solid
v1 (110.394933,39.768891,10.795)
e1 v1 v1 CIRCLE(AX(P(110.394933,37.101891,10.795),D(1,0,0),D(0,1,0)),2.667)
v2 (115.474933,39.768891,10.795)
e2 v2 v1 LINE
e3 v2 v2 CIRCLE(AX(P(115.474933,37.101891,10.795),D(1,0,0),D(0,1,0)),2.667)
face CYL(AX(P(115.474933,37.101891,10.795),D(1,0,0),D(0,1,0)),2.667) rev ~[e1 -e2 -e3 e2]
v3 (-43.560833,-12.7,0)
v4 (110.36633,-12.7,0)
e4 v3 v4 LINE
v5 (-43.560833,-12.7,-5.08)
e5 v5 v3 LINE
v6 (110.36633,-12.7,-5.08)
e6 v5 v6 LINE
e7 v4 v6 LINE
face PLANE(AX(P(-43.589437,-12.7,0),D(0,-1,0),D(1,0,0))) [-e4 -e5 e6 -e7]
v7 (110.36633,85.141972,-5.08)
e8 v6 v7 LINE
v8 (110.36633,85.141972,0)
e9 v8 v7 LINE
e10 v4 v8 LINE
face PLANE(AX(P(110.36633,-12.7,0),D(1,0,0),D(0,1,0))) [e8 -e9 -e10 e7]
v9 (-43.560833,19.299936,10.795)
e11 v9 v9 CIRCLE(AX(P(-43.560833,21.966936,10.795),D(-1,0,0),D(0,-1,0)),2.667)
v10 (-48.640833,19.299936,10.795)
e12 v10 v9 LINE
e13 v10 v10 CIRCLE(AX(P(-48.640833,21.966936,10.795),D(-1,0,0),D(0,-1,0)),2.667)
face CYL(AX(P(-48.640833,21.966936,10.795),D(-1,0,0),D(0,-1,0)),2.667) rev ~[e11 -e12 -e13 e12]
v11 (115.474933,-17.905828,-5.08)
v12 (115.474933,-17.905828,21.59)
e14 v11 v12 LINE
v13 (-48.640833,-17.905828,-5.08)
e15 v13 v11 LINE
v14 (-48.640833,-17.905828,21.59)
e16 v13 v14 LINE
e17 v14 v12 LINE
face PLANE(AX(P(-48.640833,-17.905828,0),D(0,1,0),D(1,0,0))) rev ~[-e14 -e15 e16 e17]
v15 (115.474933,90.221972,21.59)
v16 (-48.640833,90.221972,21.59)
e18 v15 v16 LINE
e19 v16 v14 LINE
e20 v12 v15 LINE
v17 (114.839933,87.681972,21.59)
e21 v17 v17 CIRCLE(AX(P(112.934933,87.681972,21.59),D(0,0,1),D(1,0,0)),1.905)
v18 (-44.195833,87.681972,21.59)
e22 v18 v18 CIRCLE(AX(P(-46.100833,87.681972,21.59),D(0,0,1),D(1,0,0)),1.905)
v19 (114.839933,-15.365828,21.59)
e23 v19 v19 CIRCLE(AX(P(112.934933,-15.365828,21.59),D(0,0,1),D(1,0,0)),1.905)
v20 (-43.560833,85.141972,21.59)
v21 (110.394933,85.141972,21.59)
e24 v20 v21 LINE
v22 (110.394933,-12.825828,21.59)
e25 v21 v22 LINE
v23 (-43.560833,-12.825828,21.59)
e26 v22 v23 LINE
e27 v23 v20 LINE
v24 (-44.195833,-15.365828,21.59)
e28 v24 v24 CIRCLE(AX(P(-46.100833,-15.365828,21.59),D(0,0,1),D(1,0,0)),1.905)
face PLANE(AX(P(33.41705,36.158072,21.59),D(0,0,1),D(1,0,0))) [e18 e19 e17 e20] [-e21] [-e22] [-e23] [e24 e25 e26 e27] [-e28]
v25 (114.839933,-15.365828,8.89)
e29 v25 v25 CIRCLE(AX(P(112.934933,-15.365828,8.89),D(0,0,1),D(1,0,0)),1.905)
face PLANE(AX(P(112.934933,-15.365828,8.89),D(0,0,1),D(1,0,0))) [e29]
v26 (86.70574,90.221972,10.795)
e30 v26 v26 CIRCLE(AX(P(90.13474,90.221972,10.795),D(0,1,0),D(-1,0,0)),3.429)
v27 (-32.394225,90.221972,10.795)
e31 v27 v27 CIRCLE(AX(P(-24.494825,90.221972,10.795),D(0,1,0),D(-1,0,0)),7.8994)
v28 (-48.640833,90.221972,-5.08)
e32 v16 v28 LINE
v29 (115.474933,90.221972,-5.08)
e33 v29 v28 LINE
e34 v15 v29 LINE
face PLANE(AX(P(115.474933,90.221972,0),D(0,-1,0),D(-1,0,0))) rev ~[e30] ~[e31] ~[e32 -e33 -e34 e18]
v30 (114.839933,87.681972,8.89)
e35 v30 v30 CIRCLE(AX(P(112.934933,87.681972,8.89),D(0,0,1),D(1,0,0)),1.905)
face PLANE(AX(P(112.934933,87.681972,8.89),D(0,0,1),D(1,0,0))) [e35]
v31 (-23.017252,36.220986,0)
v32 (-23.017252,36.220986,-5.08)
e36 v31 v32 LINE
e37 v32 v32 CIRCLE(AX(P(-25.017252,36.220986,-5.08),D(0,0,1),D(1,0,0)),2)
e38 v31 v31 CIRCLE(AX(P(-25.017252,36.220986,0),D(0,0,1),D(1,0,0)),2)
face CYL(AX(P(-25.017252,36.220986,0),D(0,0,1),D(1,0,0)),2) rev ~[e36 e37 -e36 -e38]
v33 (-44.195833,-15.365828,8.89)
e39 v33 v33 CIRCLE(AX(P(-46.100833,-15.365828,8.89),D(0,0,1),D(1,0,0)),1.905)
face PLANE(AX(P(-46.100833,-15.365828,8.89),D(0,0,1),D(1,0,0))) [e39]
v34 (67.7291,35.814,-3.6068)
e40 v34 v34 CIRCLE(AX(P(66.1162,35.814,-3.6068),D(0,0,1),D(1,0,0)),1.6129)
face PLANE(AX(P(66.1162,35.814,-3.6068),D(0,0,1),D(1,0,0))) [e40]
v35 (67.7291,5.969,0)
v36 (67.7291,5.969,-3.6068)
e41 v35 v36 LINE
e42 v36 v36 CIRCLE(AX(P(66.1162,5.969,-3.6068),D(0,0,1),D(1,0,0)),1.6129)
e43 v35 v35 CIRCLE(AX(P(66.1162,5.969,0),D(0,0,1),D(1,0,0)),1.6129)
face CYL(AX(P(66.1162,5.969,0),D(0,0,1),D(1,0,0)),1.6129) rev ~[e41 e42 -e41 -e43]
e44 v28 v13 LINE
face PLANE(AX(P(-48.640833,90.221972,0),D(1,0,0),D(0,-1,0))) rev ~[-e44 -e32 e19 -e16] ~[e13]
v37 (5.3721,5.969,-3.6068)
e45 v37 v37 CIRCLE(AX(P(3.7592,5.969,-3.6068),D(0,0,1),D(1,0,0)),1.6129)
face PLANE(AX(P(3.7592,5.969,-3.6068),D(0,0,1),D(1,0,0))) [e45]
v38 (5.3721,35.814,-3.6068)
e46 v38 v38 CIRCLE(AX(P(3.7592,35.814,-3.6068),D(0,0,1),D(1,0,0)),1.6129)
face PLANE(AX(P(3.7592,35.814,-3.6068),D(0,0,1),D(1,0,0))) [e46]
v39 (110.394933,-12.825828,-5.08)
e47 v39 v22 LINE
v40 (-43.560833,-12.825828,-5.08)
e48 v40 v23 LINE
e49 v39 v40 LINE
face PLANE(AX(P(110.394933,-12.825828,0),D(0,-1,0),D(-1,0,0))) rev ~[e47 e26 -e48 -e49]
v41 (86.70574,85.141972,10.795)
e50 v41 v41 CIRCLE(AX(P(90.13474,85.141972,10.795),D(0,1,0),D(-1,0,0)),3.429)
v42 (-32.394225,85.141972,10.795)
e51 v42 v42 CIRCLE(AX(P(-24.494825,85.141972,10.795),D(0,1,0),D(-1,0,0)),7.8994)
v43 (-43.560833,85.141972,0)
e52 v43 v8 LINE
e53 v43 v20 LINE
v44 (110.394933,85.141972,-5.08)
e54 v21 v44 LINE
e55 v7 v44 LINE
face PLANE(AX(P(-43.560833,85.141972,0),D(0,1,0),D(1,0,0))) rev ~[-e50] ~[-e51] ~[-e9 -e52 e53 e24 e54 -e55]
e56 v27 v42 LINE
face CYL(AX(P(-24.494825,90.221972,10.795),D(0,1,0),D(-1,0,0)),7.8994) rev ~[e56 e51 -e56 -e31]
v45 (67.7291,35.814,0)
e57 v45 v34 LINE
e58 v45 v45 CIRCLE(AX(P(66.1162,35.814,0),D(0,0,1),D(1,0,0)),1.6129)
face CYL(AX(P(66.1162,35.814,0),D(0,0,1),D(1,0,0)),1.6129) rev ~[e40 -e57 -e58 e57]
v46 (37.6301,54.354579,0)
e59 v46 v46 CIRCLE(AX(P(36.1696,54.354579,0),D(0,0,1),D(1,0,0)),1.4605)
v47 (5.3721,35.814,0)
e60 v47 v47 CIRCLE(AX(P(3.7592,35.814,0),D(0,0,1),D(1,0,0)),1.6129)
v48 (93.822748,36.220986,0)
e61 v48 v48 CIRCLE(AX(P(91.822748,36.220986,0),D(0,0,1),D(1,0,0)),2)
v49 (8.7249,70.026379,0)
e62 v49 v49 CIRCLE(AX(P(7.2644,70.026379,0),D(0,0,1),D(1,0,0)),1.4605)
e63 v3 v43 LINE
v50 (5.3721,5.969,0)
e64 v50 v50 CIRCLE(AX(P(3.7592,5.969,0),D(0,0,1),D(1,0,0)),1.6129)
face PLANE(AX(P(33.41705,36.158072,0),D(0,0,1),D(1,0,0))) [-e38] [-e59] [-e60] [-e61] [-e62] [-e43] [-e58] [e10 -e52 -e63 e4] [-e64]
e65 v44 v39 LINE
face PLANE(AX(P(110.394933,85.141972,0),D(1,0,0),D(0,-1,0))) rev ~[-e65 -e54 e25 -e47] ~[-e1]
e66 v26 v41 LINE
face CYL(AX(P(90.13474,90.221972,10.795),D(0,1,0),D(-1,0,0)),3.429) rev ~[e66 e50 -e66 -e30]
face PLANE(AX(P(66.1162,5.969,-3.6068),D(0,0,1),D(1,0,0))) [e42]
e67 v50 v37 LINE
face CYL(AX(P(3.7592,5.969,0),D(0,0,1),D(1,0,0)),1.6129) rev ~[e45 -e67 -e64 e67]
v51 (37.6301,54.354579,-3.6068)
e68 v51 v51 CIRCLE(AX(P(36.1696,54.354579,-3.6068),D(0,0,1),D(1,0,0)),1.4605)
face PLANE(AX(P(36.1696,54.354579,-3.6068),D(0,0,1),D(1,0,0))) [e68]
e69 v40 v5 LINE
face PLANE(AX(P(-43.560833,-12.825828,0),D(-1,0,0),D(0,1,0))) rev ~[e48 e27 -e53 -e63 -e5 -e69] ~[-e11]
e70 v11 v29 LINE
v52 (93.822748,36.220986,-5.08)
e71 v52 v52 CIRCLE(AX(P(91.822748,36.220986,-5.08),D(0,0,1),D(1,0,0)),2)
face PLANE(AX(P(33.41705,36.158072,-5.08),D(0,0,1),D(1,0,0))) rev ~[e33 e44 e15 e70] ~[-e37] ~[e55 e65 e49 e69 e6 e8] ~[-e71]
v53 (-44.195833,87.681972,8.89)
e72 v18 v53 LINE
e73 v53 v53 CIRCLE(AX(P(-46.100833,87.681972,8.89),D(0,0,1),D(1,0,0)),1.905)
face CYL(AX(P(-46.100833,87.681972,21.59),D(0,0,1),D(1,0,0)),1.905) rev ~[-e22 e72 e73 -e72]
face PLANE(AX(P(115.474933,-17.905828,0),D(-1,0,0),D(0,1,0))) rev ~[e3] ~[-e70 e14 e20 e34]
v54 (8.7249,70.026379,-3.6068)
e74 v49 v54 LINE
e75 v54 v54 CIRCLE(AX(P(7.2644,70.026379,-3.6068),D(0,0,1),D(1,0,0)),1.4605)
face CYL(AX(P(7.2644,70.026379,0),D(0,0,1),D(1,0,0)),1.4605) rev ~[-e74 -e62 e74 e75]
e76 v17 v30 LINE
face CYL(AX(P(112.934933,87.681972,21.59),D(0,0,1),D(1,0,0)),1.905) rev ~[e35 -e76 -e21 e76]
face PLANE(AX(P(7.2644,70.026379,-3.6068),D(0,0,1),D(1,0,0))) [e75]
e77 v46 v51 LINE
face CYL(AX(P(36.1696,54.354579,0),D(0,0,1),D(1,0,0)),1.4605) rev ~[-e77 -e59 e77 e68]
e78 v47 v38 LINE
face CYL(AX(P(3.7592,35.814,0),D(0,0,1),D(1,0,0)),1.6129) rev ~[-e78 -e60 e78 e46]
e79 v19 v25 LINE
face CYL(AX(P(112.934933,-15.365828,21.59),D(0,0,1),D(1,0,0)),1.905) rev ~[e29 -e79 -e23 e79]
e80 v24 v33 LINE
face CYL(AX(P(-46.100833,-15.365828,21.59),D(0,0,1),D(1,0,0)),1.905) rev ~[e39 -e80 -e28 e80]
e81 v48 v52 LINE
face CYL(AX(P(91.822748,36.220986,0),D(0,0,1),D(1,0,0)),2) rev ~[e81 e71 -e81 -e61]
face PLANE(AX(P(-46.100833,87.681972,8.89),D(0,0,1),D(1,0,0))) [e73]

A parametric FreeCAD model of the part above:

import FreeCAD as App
import Part
import Sketcher
Q = App.Units.Quantity


def add_polygon(sketch, points):
    """Adds a closed chain of lines whose ends are joined by coincident constraints."""
    first, n = sketch.GeometryCount, len(points)
    for a, b in zip(points, points[1:] + points[:1]):
        sketch.addGeometry(Part.LineSegment(App.Vector(*a, 0), App.Vector(*b, 0)), False)
    for i in range(n):
        sketch.addConstraint(Sketcher.Constraint("Coincident", first + i, 2, first + (i + 1) % n, 1))

doc = App.newDocument("Part")
body = doc.addObject("PartDesign::Body", "Body")

sketch1 = body.newObject("Sketcher::SketchObject", "Sketch")
sketch1.AttachmentSupport = (doc.getObject("XY_Plane"), [""])
sketch1.MapMode = "FlatFace"
add_polygon(sketch1, [(-43.589437, -12.7), (110.36633, -12.7), (110.36633, 85.2678), (-43.589437, 85.2678)])
sketch1.addConstraint(Sketcher.Constraint("Horizontal", 0))
sketch1.addConstraint(Sketcher.Constraint("Vertical", 1))
sketch1.addConstraint(Sketcher.Constraint("Horizontal", 2))
sketch1.addConstraint(Sketcher.Constraint("Vertical", 3))
sketch1.addConstraint(Sketcher.Constraint("DistanceY", 0, 2, -1, 1, Q("0.5 in")))
sketch1.addConstraint(Sketcher.Constraint("DistanceY", 1, 1, 1, 2, Q("3.857 in")))
sketch1.addConstraint(Sketcher.Constraint("DistanceX", 0, 1, 0, 2, Q("153.955767 mm")))
sketch1.addConstraint(Sketcher.Constraint("DistanceX", -1, 1, 0, 2, Q("110.36633 mm")))
pad1 = body.newObject("PartDesign::Pad", "Pad")
pad1.Profile = sketch1
pad1.Length = Q("0.2 in")
pad1.Reversed = True

sketch2 = body.newObject("Sketcher::SketchObject", "Sketch001")
sketch2.AttachmentSupport = (doc.getObject("XY_Plane"), [""])
sketch2.MapMode = "FlatFace"
add_polygon(sketch2, [(-48.640833, 90.221972), (-48.640833, -17.905828), (115.474933, -17.905828), (115.474933, 90.221972)])
add_polygon(sketch2, [(110.394933, 85.141972), (110.394933, -12.825828), (-43.560833, -12.825828), (-43.560833, 85.141972)])
sketch2.addConstraint(Sketcher.Constraint("Vertical", 0))
sketch2.addConstraint(Sketcher.Constraint("Horizontal", 1))
sketch2.addConstraint(Sketcher.Constraint("Vertical", 2))
sketch2.addConstraint(Sketcher.Constraint("Horizontal", 3))
sketch2.addConstraint(Sketcher.Constraint("Vertical", 4))
sketch2.addConstraint(Sketcher.Constraint("Horizontal", 5))
sketch2.addConstraint(Sketcher.Constraint("Vertical", 6))
sketch2.addConstraint(Sketcher.Constraint("Horizontal", 7))
sketch2.addConstraint(Sketcher.Constraint("DistanceX", 4, 2, 1, 2, Q("0.2 in")))
sketch2.addConstraint(Sketcher.Constraint("DistanceY", 1, 2, 4, 2, Q("0.2 in")))
sketch2.addConstraint(Sketcher.Constraint("DistanceX", 0, 2, 5, 2, Q("0.2 in")))
sketch2.addConstraint(Sketcher.Constraint("DistanceY", 6, 2, 3, 2, Q("0.2 in")))
sketch2.addConstraint(Sketcher.Constraint("DistanceY", 0, 2, 0, 1, Q("4.257 in")))
sketch2.addConstraint(Sketcher.Constraint("DistanceX", 1, 1, 1, 2, Q("164.115766 mm")))
sketch2.addConstraint(Sketcher.Constraint("DistanceY", -1, 1, 2, 2, Q("90.221972 mm")))
sketch2.addConstraint(Sketcher.Constraint("DistanceX", 0, 2, -1, 1, Q("48.640833 mm")))
pad2 = body.newObject("PartDesign::Pad", "Pad001")
pad2.Profile = sketch2
pad2.Length = Q("0.2 in")
pad2.Reversed = True

sketch3 = body.newObject("Sketcher::SketchObject", "Sketch002")
sketch3.AttachmentSupport = (doc.getObject("XY_Plane"), [""])
sketch3.MapMode = "FlatFace"
add_polygon(sketch3, [(-48.640833, 90.221972), (-48.640833, -17.905828), (115.474933, -17.905828), (115.474933, 90.221972)])
add_polygon(sketch3, [(110.394933, 85.141972), (110.394933, -12.825828), (-43.560833, -12.825828), (-43.560833, 85.141972)])
sketch3.addConstraint(Sketcher.Constraint("Vertical", 0))
sketch3.addConstraint(Sketcher.Constraint("Horizontal", 1))
sketch3.addConstraint(Sketcher.Constraint("Vertical", 2))
sketch3.addConstraint(Sketcher.Constraint("Horizontal", 3))
sketch3.addConstraint(Sketcher.Constraint("Vertical", 4))
sketch3.addConstraint(Sketcher.Constraint("Horizontal", 5))
sketch3.addConstraint(Sketcher.Constraint("Vertical", 6))
sketch3.addConstraint(Sketcher.Constraint("Horizontal", 7))
sketch3.addConstraint(Sketcher.Constraint("DistanceX", 4, 2, 1, 2, Q("0.2 in")))
sketch3.addConstraint(Sketcher.Constraint("DistanceY", 1, 2, 4, 2, Q("0.2 in")))
sketch3.addConstraint(Sketcher.Constraint("DistanceX", 0, 2, 5, 2, Q("0.2 in")))
sketch3.addConstraint(Sketcher.Constraint("DistanceY", 6, 2, 3, 2, Q("0.2 in")))
sketch3.addConstraint(Sketcher.Constraint("DistanceY", 0, 2, 0, 1, Q("4.257 in")))
sketch3.addConstraint(Sketcher.Constraint("DistanceX", 1, 1, 1, 2, Q("164.115766 mm")))
sketch3.addConstraint(Sketcher.Constraint("DistanceY", -1, 1, 2, 2, Q("90.221972 mm")))
sketch3.addConstraint(Sketcher.Constraint("DistanceX", 0, 2, -1, 1, Q("48.640833 mm")))
pad3 = body.newObject("PartDesign::Pad", "Pad002")
pad3.Profile = sketch3
pad3.Length = Q("0.85 in")

sketch4 = body.newObject("Sketcher::SketchObject", "Sketch003")
sketch4.AttachmentSupport = (doc.getObject("XZ_Plane"), [""])
sketch4.MapMode = "FlatFace"
sketch4.AttachmentOffset = App.Placement(App.Vector(0, 0, -90.221972), App.Rotation())
sketch4.addGeometry(Part.Circle(App.Vector(-24.494825, 10.795, 0), App.Vector(0, 0, 1), 7.8994), False)
sketch4.addConstraint(Sketcher.Constraint("Diameter", 0, Q("0.622 in")))
sketch4.addConstraint(Sketcher.Constraint("DistanceY", -1, 1, 0, 3, Q("0.425 in")))
sketch4.addConstraint(Sketcher.Constraint("DistanceX", 0, 3, -1, 1, Q("24.494825 mm")))
pocket1 = body.newObject("PartDesign::Pocket", "Pocket")
pocket1.Profile = sketch4
pocket1.Length = Q("1 in")
pocket1.Reversed = True

sketch5 = body.newObject("Sketcher::SketchObject", "Sketch004")
sketch5.AttachmentSupport = (doc.getObject("XZ_Plane"), [""])
sketch5.MapMode = "FlatFace"
sketch5.AttachmentOffset = App.Placement(App.Vector(0, 0, -90.221972), App.Rotation())
sketch5.addGeometry(Part.Circle(App.Vector(90.13474, 10.795, 0), App.Vector(0, 0, 1), 3.429), False)
sketch5.addConstraint(Sketcher.Constraint("Diameter", 0, Q("0.27 in")))
sketch5.addConstraint(Sketcher.Constraint("DistanceY", -1, 1, 0, 3, Q("0.425 in")))
sketch5.addConstraint(Sketcher.Constraint("DistanceX", -1, 1, 0, 3, Q("90.13474 mm")))
pocket2 = body.newObject("PartDesign::Pocket", "Pocket001")
pocket2.Profile = sketch5
pocket2.Length = Q("1 in")
pocket2.Reversed = True

sketch6 = body.newObject("Sketcher::SketchObject", "Sketch005")
sketch6.AttachmentSupport = (doc.getObject("YZ_Plane"), [""])
sketch6.MapMode = "FlatFace"
sketch6.AttachmentOffset = App.Placement(App.Vector(0, 0, -48.640833), App.Rotation())
sketch6.addGeometry(Part.Circle(App.Vector(21.966936, 10.795, 0), App.Vector(0, 0, 1), 2.667), False)
sketch6.addConstraint(Sketcher.Constraint("Diameter", 0, Q("0.21 in")))
sketch6.addConstraint(Sketcher.Constraint("DistanceY", -1, 1, 0, 3, Q("0.425 in")))
sketch6.addConstraint(Sketcher.Constraint("DistanceX", -1, 1, 0, 3, Q("21.966936 mm")))
pocket3 = body.newObject("PartDesign::Pocket", "Pocket002")
pocket3.Profile = sketch6
pocket3.Length = Q("1 in")
pocket3.Reversed = True

sketch7 = body.newObject("Sketcher::SketchObject", "Sketch006")
sketch7.AttachmentSupport = (doc.getObject("YZ_Plane"), [""])
sketch7.MapMode = "FlatFace"
sketch7.AttachmentOffset = App.Placement(App.Vector(0, 0, 115.474933), App.Rotation())
sketch7.addGeometry(Part.Circle(App.Vector(37.101891, 10.795, 0), App.Vector(0, 0, 1), 2.667), False)
sketch7.addConstraint(Sketcher.Constraint("Diameter", 0, Q("0.21 in")))
sketch7.addConstraint(Sketcher.Constraint("DistanceY", -1, 1, 0, 3, Q("0.425 in")))
sketch7.addConstraint(Sketcher.Constraint("DistanceX", -1, 1, 0, 3, Q("37.101891 mm")))
pocket4 = body.newObject("PartDesign::Pocket", "Pocket003")
pocket4.Profile = sketch7
pocket4.Length = Q("1 in")

sketch8 = body.newObject("Sketcher::SketchObject", "Sketch007")
sketch8.AttachmentSupport = (doc.getObject("XY_Plane"), [""])
sketch8.MapMode = "FlatFace"
sketch8.addGeometry(Part.Circle(App.Vector(7.2644, 70.026379, 0), App.Vector(0, 0, 1), 1.4605), False)
sketch8.addGeometry(Part.Circle(App.Vector(36.1696, 54.354579, 0), App.Vector(0, 0, 1), 1.4605), False)
sketch8.addConstraint(Sketcher.Constraint("Equal", 0, 1))
sketch8.addConstraint(Sketcher.Constraint("Diameter", 0, Q("0.115 in")))
sketch8.addConstraint(Sketcher.Constraint("DistanceX", -1, 1, 0, 3, Q("0.286 in")))
sketch8.addConstraint(Sketcher.Constraint("DistanceX", -1, 1, 1, 3, Q("1.424 in")))
sketch8.addConstraint(Sketcher.Constraint("DistanceY", 1, 3, 0, 3, Q("0.617 in")))
sketch8.addConstraint(Sketcher.Constraint("DistanceY", -1, 1, 0, 3, Q("70.026379 mm")))
pocket5 = body.newObject("PartDesign::Pocket", "Pocket004")
pocket5.Profile = sketch8
pocket5.Length = Q("0.142 in")

sketch9 = body.newObject("Sketcher::SketchObject", "Sketch008")
sketch9.AttachmentSupport = (doc.getObject("XY_Plane"), [""])
sketch9.MapMode = "FlatFace"
sketch9.addGeometry(Part.Circle(App.Vector(3.7592, 35.814, 0), App.Vector(0, 0, 1), 1.6129), False)
sketch9.addGeometry(Part.Circle(App.Vector(3.7592, 5.969, 0), App.Vector(0, 0, 1), 1.6129), False)
sketch9.addGeometry(Part.Circle(App.Vector(66.1162, 5.969, 0), App.Vector(0, 0, 1), 1.6129), False)
sketch9.addGeometry(Part.Circle(App.Vector(66.1162, 35.814, 0), App.Vector(0, 0, 1), 1.6129), False)
sketch9.addConstraint(Sketcher.Constraint("Equal", 0, 1))
sketch9.addConstraint(Sketcher.Constraint("Equal", 1, 2))
sketch9.addConstraint(Sketcher.Constraint("Equal", 2, 3))
sketch9.addConstraint(Sketcher.Constraint("Horizontal", 1, 3, 2, 3))
sketch9.addConstraint(Sketcher.Constraint("Horizontal", 0, 3, 3, 3))
sketch9.addConstraint(Sketcher.Constraint("Vertical", 0, 3, 1, 3))
sketch9.addConstraint(Sketcher.Constraint("Vertical", 2, 3, 3, 3))
sketch9.addConstraint(Sketcher.Constraint("Diameter", 0, Q("0.127 in")))
sketch9.addConstraint(Sketcher.Constraint("DistanceY", -1, 1, 0, 3, Q("1.41 in")))
sketch9.addConstraint(Sketcher.Constraint("DistanceX", -1, 1, 0, 3, Q("0.148 in")))
sketch9.addConstraint(Sketcher.Constraint("DistanceY", -1, 1, 1, 3, Q("0.235 in")))
sketch9.addConstraint(Sketcher.Constraint("DistanceX", -1, 1, 2, 3, Q("2.603 in")))
pocket6 = body.newObject("PartDesign::Pocket", "Pocket005")
pocket6.Profile = sketch9
pocket6.Length = Q("0.142 in")

sketch10 = body.newObject("Sketcher::SketchObject", "Sketch009")
sketch10.AttachmentSupport = (doc.getObject("XY_Plane"), [""])
sketch10.MapMode = "FlatFace"
sketch10.AttachmentOffset = App.Placement(App.Vector(0, 0, 0.85 * 25.4), App.Rotation())
sketch10.addGeometry(Part.Circle(App.Vector(-46.100833, -15.365828, 0), App.Vector(0, 0, 1), 1.905), False)
sketch10.addGeometry(Part.Circle(App.Vector(-46.100833, 87.681972, 0), App.Vector(0, 0, 1), 1.905), False)
sketch10.addGeometry(Part.Circle(App.Vector(112.934933, 87.681972, 0), App.Vector(0, 0, 1), 1.905), False)
sketch10.addGeometry(Part.Circle(App.Vector(112.934933, -15.365828, 0), App.Vector(0, 0, 1), 1.905), False)
sketch10.addConstraint(Sketcher.Constraint("Equal", 0, 1))
sketch10.addConstraint(Sketcher.Constraint("Equal", 1, 2))
sketch10.addConstraint(Sketcher.Constraint("Equal", 2, 3))
sketch10.addConstraint(Sketcher.Constraint("Horizontal", 1, 3, 2, 3))
sketch10.addConstraint(Sketcher.Constraint("Horizontal", 0, 3, 3, 3))
sketch10.addConstraint(Sketcher.Constraint("Vertical", 0, 3, 1, 3))
sketch10.addConstraint(Sketcher.Constraint("Vertical", 2, 3, 3, 3))
sketch10.addConstraint(Sketcher.Constraint("Diameter", 0, Q("0.15 in")))
sketch10.addConstraint(Sketcher.Constraint("DistanceY", 0, 3, 1, 3, Q("4.057 in")))
sketch10.addConstraint(Sketcher.Constraint("DistanceY", -1, 1, 1, 3, Q("87.681972 mm")))
sketch10.addConstraint(Sketcher.Constraint("DistanceX", 0, 3, -1, 1, Q("46.100833 mm")))
sketch10.addConstraint(Sketcher.Constraint("DistanceX", -1, 1, 2, 3, Q("112.934933 mm")))
pocket7 = body.newObject("PartDesign::Pocket", "Pocket006")
pocket7.Profile = sketch10
pocket7.Length = Q("0.5 in")

sketch11 = body.newObject("Sketcher::SketchObject", "Sketch010")
sketch11.AttachmentSupport = (doc.getObject("XY_Plane"), [""])
sketch11.MapMode = "FlatFace"
sketch11.addGeometry(Part.Circle(App.Vector(-25.017252, 36.220986, 0), App.Vector(0, 0, 1), 2), False)
sketch11.addGeometry(Part.Circle(App.Vector(91.822748, 36.220986, 0), App.Vector(0, 0, 1), 2), False)
sketch11.addConstraint(Sketcher.Constraint("Equal", 0, 1))
sketch11.addConstraint(Sketcher.Constraint("Horizontal", 0, 3, 1, 3))
sketch11.addConstraint(Sketcher.Constraint("DistanceX", 0, 3, 1, 3, Q("4.6 in")))
sketch11.addConstraint(Sketcher.Constraint("Diameter", 0, Q("4 mm")))
sketch11.addConstraint(Sketcher.Constraint("DistanceX", 0, 3, -1, 1, Q("25.017252 mm")))
sketch11.addConstraint(Sketcher.Constraint("DistanceY", -1, 1, 0, 3, Q("36.220986 mm")))
pocket8 = body.newObject("PartDesign::Pocket", "Pocket007")
pocket8.Profile = sketch11
pocket8.Length = Q("1 in")

doc.recompute()
